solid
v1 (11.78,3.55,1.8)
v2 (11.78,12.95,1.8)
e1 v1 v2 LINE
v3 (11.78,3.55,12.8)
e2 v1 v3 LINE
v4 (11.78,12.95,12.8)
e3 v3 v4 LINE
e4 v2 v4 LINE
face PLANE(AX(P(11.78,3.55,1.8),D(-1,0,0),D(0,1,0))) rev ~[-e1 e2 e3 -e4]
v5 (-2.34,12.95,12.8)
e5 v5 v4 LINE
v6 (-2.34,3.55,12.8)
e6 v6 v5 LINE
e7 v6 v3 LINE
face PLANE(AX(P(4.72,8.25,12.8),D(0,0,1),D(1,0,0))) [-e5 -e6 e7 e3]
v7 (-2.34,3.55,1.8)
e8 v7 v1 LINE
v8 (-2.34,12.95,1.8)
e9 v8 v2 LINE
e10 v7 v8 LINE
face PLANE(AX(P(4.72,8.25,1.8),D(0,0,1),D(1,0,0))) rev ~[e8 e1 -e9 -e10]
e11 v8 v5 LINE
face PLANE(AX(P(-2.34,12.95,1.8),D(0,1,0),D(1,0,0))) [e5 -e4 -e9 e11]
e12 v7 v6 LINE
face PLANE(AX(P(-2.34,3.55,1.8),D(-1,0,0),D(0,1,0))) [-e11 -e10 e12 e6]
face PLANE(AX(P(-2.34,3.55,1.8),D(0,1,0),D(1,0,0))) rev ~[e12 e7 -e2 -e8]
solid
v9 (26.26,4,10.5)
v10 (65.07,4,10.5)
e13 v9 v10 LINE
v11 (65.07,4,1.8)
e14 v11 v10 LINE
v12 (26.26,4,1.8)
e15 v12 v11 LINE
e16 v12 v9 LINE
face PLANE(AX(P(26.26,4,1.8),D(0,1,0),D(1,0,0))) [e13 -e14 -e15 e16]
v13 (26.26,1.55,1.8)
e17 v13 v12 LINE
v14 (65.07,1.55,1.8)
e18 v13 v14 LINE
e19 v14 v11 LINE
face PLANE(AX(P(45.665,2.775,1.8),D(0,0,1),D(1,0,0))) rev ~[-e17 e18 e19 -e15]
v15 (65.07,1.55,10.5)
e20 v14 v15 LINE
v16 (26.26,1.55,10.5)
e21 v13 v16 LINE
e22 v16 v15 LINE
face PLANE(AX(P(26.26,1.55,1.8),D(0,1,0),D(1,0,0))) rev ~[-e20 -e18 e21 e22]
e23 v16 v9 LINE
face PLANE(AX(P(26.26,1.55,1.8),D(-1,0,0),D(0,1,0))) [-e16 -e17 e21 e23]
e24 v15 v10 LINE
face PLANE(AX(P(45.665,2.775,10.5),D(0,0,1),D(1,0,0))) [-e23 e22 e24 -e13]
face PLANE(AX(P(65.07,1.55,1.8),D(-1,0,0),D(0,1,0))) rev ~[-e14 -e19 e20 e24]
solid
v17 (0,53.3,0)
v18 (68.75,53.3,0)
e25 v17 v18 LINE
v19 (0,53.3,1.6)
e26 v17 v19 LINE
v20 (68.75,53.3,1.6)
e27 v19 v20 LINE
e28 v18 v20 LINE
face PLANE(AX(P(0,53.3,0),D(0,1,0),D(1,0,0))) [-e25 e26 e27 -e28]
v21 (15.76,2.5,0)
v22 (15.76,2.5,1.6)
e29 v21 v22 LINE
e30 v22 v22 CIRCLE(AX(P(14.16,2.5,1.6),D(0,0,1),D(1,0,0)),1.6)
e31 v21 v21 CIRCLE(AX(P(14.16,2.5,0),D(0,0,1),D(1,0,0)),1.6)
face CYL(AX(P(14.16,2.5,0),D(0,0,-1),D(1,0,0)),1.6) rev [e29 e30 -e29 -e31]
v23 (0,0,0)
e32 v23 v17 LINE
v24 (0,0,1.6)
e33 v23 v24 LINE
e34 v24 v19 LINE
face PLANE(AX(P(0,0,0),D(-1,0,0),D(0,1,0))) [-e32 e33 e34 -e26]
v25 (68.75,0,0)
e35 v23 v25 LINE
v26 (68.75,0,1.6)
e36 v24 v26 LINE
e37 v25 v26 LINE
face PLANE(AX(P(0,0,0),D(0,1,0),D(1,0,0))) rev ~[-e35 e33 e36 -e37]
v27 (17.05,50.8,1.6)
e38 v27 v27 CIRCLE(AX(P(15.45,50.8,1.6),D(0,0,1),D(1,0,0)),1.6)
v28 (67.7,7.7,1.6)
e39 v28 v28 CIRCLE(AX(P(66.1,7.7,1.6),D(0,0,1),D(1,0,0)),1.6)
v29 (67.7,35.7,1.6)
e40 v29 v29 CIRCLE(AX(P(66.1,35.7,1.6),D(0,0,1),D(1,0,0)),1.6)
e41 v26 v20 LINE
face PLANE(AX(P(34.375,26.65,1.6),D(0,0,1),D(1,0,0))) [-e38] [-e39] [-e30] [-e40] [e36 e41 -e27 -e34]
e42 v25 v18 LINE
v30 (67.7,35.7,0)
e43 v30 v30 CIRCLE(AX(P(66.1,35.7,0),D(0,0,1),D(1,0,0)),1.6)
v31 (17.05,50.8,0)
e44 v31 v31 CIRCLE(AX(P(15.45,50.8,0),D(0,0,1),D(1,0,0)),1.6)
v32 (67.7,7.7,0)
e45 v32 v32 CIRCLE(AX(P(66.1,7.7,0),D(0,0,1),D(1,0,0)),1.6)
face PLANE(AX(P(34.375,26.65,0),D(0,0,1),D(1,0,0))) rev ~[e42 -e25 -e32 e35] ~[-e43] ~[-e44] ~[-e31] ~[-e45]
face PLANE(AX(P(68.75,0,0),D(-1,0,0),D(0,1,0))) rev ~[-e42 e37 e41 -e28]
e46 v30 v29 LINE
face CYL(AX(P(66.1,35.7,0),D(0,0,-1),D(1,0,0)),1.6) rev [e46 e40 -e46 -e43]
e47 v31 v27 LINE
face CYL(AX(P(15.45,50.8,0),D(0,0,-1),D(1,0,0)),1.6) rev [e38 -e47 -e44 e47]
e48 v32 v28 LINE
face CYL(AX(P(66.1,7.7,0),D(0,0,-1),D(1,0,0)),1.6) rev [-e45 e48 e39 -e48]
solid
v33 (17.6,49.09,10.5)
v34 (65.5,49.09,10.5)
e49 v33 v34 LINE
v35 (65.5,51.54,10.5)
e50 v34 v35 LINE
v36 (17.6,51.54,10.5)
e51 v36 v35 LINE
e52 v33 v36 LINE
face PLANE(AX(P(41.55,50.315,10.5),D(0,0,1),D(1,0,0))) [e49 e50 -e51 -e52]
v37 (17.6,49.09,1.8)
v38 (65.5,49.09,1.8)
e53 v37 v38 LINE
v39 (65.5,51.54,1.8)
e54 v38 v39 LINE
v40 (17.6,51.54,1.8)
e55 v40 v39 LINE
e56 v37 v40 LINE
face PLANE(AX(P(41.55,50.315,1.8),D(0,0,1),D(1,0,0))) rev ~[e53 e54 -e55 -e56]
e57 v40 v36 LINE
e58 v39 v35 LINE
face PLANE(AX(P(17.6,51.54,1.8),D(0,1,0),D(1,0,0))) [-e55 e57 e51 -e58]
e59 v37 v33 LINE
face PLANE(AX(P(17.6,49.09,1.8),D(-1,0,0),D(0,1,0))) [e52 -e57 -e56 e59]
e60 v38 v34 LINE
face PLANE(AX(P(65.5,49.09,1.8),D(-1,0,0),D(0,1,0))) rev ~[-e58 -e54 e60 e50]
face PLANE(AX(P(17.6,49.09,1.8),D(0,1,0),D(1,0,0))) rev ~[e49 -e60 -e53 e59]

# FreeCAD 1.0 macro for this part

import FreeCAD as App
import Part
import Sketcher

V = App.Vector
Q = App.Units.Quantity


def add_polygon(sketch, points):
    """Adds a closed chain of lines whose ends are joined by coincident constraints."""
    first, n = sketch.GeometryCount, len(points)
    for a, b in zip(points, points[1:] + points[:1]):
        sketch.addGeometry(Part.LineSegment(App.Vector(*a, 0), App.Vector(*b, 0)), False)
    for i in range(n):
        sketch.addConstraint(Sketcher.Constraint("Coincident", first + i, 2, first + (i + 1) % n, 1))

doc = App.newDocument("Part")
body = doc.addObject("PartDesign::Body", "Body")

sketch1 = doc.addObject("Sketcher::SketchObject", "Sketch")
body.addObject(sketch1)
sketch1.AttachmentSupport = (doc.XY_Plane, [""])
sketch1.MapMode = "FlatFace"
add_polygon(sketch1, [(0, 53.3), (0, 0), (68.75, 0), (68.75, 53.3)])
sketch1.addGeometry(Part.Circle(V(14.16, 2.5, 0), V(0, 0, 1), 1.6), False)
sketch1.addGeometry(Part.Circle(V(66.1, 7.7, 0), V(0, 0, 1), 1.6), False)
sketch1.addGeometry(Part.Circle(V(15.45, 50.8, 0), V(0, 0, 1), 1.6), False)
sketch1.addGeometry(Part.Circle(V(66.1, 35.7, 0), V(0, 0, 1), 1.6), False)
sketch1.addConstraint([
    Sketcher.Constraint("Vertical", 0),
    Sketcher.Constraint("Horizontal", 1),
    Sketcher.Constraint("Vertical", 2),
    Sketcher.Constraint("Horizontal", 3),
    Sketcher.Constraint("Coincident", 0, 2, -1, 1),
    Sketcher.Constraint("Equal", 4, 5),
    Sketcher.Constraint("Equal", 5, 6),
    Sketcher.Constraint("Equal", 6, 7),
    Sketcher.Constraint("Vertical", 5, 3, 7, 3),
    Sketcher.Constraint("Diameter", 4, Q("3.2 mm")),
    Sketcher.Constraint("DistanceY", 0, 2, 0, 1, Q("53.3 mm")),
    Sketcher.Constraint("DistanceY", 5, 3, 7, 3, Q("28 mm")),
    Sketcher.Constraint("DistanceX", 1, 1, 1, 2, Q("68.75 mm")),
    Sketcher.Constraint("DistanceY", -1, 1, 4, 3, Q("2.5 mm")),
    Sketcher.Constraint("DistanceX", -1, 1, 5, 3, Q("66.1 mm")),
    Sketcher.Constraint("DistanceY", -1, 1, 5, 3, Q("7.7 mm")),
    Sketcher.Constraint("DistanceY", -1, 1, 6, 3, Q("50.8 mm")),
    Sketcher.Constraint("DistanceX", 6, 3, 1, 2, Q("53.3 mm")),
    Sketcher.Constraint("DistanceX", -1, 1, 4, 3, Q("14.16 mm")),
])
pad1 = doc.addObject("PartDesign::Pad", "Pad")
body.addObject(pad1)
pad1.Profile = sketch1
pad1.Length = 1.6
body2 = doc.addObject("PartDesign::Body", "Body001")

sketch2 = doc.addObject("Sketcher::SketchObject", "Sketch001")
body2.addObject(sketch2)
sketch2.AttachmentSupport = (doc.getObject("XY_Plane001"), [""])
sketch2.MapMode = "FlatFace"
sketch2.AttachmentOffset = App.Placement(V(0, 0, 1.8), App.Rotation())
add_polygon(sketch2, [(-2.34, 12.95), (-2.34, 3.55), (11.78, 3.55), (11.78, 12.95)])
sketch2.addConstraint([
    Sketcher.Constraint("Vertical", 0),
    Sketcher.Constraint("Horizontal", 1),
    Sketcher.Constraint("Vertical", 2),
    Sketcher.Constraint("Horizontal", 3),
    Sketcher.Constraint("DistanceY", 0, 2, 0, 1, Q("9.4 mm")),
    Sketcher.Constraint("DistanceX", 1, 1, 1, 2, Q("14.12 mm")),
    Sketcher.Constraint("DistanceX", 0, 2, -1, 1, Q("2.34 mm")),
    Sketcher.Constraint("DistanceY", -1, 1, 0, 2, Q("3.55 mm")),
])
pad2 = doc.addObject("PartDesign::Pad", "Pad001")
body2.addObject(pad2)
pad2.Profile = sketch2
pad2.Length = 11
body3 = doc.addObject("PartDesign::Body", "Body002")

sketch3 = doc.addObject("Sketcher::SketchObject", "Sketch002")
body3.addObject(sketch3)
sketch3.AttachmentSupport = (doc.getObject("XY_Plane002"), [""])
sketch3.MapMode = "FlatFace"
sketch3.AttachmentOffset = App.Placement(V(0, 0, 1.8), App.Rotation())
add_polygon(sketch3, [(17.6, 51.54), (17.6, 49.09), (65.5, 49.09), (65.5, 51.54)])
sketch3.addConstraint([
    Sketcher.Constraint("Vertical", 0),
    Sketcher.Constraint("Horizontal", 1),
    Sketcher.Constraint("Vertical", 2),
    Sketcher.Constraint("Horizontal", 3),
    Sketcher.Constraint("DistanceX", 1, 1, 1, 2, Q("47.9 mm")),
    Sketcher.Constraint("DistanceY", 0, 2, 0, 1, Q("2.45 mm")),
    Sketcher.Constraint("DistanceX", -1, 1, 0, 2, Q("17.6 mm")),
    Sketcher.Constraint("DistanceY", -1, 1, 0, 2, Q("49.09 mm")),
])
pad3 = doc.addObject("PartDesign::Pad", "Pad002")
body3.addObject(pad3)
pad3.Profile = sketch3
pad3.Length = 8.7
body4 = doc.addObject("PartDesign::Body", "Body003")

sketch4 = doc.addObject("Sketcher::SketchObject", "Sketch003")
body4.addObject(sketch4)
sketch4.AttachmentSupport = (doc.getObject("XY_Plane003"), [""])
sketch4.MapMode = "FlatFace"
sketch4.AttachmentOffset = App.Placement(V(0, 0, 1.8), App.Rotation())
add_polygon(sketch4, [(26.26, 4), (26.26, 1.55), (65.07, 1.55), (65.07, 4)])
sketch4.addConstraint([
    Sketcher.Constraint("Vertical", 0),
    Sketcher.Constraint("Horizontal", 1),
    Sketcher.Constraint("Vertical", 2),
    Sketcher.Constraint("Horizontal", 3),
    Sketcher.Constraint("DistanceY", -1, 1, 2, 2, Q("4 mm")),
    Sketcher.Constraint("DistanceX", 1, 1, 1, 2, Q("38.81 mm")),
    Sketcher.Constraint("DistanceY", 0, 2, 0, 1, Q("2.45 mm")),
    Sketcher.Constraint("DistanceX", -1, 1, 0, 2, Q("26.26 mm")),
])
pad4 = doc.addObject("PartDesign::Pad", "Pad003")
body4.addObject(pad4)
pad4.Profile = sketch4
pad4.Length = 8.7

doc.recompute()
